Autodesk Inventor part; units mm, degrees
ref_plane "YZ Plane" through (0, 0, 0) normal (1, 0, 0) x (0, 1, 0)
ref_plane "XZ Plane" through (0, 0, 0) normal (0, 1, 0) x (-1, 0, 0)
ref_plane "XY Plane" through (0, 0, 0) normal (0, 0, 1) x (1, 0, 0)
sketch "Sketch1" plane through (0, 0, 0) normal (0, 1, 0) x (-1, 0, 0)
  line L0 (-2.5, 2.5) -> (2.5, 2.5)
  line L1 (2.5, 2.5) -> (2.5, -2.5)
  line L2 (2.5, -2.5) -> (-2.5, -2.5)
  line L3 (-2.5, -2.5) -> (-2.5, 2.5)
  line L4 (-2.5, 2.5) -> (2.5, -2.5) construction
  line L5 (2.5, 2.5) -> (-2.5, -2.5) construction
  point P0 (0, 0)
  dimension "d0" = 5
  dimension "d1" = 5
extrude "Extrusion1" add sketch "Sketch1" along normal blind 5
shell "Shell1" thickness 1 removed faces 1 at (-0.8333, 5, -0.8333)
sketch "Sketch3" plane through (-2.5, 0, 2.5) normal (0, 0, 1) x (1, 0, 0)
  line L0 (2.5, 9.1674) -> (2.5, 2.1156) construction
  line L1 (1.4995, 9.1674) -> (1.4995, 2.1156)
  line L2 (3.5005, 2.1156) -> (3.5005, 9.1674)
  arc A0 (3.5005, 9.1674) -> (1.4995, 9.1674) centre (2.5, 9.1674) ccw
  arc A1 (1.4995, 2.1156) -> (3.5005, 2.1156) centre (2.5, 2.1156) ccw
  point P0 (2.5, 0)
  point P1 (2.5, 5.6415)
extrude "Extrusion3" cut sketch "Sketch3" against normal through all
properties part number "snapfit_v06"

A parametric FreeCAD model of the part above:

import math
import FreeCAD as App
import Part
import Sketcher
from FreeCAD import Vector


def faces_at(feature, points):
    """Names of the faces that lie closest to the given points."""
    faces = feature.Shape.Faces
    near = lambda p: min(range(len(faces)), key=lambda i: faces[i].distToShape(Part.Vertex(*p))[0])
    return sorted({f"Face{near(p) + 1}" for p in points})

doc = App.newDocument("Part")
body = doc.addObject("PartDesign::Body", "Body")

sketch1 = body.newObject("Sketcher::SketchObject", "Sketch")
sketch1.AttachmentSupport = (doc.getObject("XZ_Plane"), [""])
sketch1.MapMode = "FlatFace"
sketch1.addGeometry(Part.LineSegment(Vector(-2.5, 2.5, 0), Vector(2.5, 2.5, 0)), False)
sketch1.addGeometry(Part.LineSegment(Vector(2.5, 2.5, 0), Vector(2.5, -2.5, 0)), False)
sketch1.addGeometry(Part.LineSegment(Vector(2.5, -2.5, 0), Vector(-2.5, -2.5, 0)), False)
sketch1.addGeometry(Part.LineSegment(Vector(-2.5, -2.5, 0), Vector(-2.5, 2.5, 0)), False)
sketch1.addConstraint(Sketcher.Constraint("Coincident", 0, 2, 1, 1))
sketch1.addConstraint(Sketcher.Constraint("Coincident", 1, 2, 2, 1))
sketch1.addConstraint(Sketcher.Constraint("Coincident", 2, 2, 3, 1))
sketch1.addConstraint(Sketcher.Constraint("Coincident", 3, 2, 0, 1))
sketch1.addConstraint(Sketcher.Constraint("Horizontal", 0))
sketch1.addConstraint(Sketcher.Constraint("Vertical", 1))
sketch1.addConstraint(Sketcher.Constraint("Horizontal", 2))
sketch1.addConstraint(Sketcher.Constraint("Vertical", 3))
sketch1.addConstraint(Sketcher.Constraint("Symmetric", 0, 2, 2, 2, -1, 1))
sketch1.addConstraint(Sketcher.Constraint("Equal", 2, 1))
sketch1.addConstraint(Sketcher.Constraint("DistanceX", 0, 1, 0, 2, 5.0))
pad1 = body.newObject("PartDesign::Pad", "Pad")
pad1.Profile = sketch1
pad1.Length = 5
pad1.Reversed = True
doc.recompute()

thickness = body.newObject("PartDesign::Thickness", "Thickness")
thickness.Base = (pad1, faces_at(pad1, [(-0.833, 5, -0.833)]))
thickness.Value = 1
thickness.Reversed = True
thickness.Join = "Intersection"

sketch2 = body.newObject("Sketcher::SketchObject", "Sketch001")
sketch2.AttachmentSupport = (doc.getObject("XY_Plane"), [""])
sketch2.MapMode = "FlatFace"
sketch2.AttachmentOffset = App.Placement(Vector(0, 0, 2.5), App.Rotation())
sketch2.addGeometry(Part.ArcOfCircle(Part.Circle(Vector(0, 9.1674, 0), Vector(0, 0, 1), 1.0005), math.radians(0), math.radians(180)), False)
sketch2.addGeometry(Part.LineSegment(Vector(-1.0005, 9.1674, 0), Vector(-1.0005, 2.1156, 0)), False)
sketch2.addGeometry(Part.ArcOfCircle(Part.Circle(Vector(0, 2.1156, 0), Vector(0, 0, 1), 1.0005), math.radians(180), math.radians(360)), False)
sketch2.addGeometry(Part.LineSegment(Vector(1.0005, 2.1156, 0), Vector(1.0005, 9.1674, 0)), False)
sketch2.addConstraint(Sketcher.Constraint("Tangent", 0, 2, 1, 1))
sketch2.addConstraint(Sketcher.Constraint("Tangent", 1, 2, 2, 1))
sketch2.addConstraint(Sketcher.Constraint("Tangent", 2, 2, 3, 1))
sketch2.addConstraint(Sketcher.Constraint("Tangent", 3, 2, 0, 1))
sketch2.addConstraint(Sketcher.Constraint("Vertical", 1))
sketch2.addConstraint(Sketcher.Constraint("Vertical", 3))
sketch2.addConstraint(Sketcher.Constraint("PointOnObject", 0, 3, -2))
sketch2.addConstraint(Sketcher.Constraint("Radius", 0, 1.0005))
sketch2.addConstraint(Sketcher.Constraint("DistanceY", 1, 2, 1, 1, 7.0518))
sketch2.addConstraint(Sketcher.Constraint("DistanceY", -1, 1, 0, 3, 9.1674))
pocket1 = body.newObject("PartDesign::Pocket", "Pocket")
pocket1.Profile = sketch2
pocket1.Type = "ThroughAll"

doc.recompute()
